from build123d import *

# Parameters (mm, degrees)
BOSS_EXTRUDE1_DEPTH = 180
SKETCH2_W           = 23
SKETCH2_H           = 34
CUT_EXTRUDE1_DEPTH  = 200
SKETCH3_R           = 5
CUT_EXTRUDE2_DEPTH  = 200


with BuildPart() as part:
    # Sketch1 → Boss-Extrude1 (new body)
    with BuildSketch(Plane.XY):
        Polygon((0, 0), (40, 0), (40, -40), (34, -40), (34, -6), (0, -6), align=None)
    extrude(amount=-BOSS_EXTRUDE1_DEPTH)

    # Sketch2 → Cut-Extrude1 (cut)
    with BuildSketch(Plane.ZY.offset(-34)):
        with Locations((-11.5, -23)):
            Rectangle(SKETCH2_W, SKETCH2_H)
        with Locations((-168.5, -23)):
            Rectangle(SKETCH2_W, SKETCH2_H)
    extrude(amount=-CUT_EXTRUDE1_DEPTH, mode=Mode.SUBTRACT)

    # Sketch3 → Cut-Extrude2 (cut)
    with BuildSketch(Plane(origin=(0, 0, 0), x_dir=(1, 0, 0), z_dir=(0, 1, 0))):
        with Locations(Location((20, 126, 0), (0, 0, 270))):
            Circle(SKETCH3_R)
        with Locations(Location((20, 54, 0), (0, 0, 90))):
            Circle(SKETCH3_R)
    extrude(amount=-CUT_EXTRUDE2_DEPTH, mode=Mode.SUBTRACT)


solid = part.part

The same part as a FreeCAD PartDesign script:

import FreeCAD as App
import Part
import Sketcher
from FreeCAD import Vector

doc = App.newDocument("Part")
body = doc.addObject("PartDesign::Body", "Body")

# Sketch on XY plane
sketch1 = body.newObject("Sketcher::SketchObject", "Sketch")
sketch1.AttachmentSupport = (doc.getObject("XY_Plane"), [""])
sketch1.MapMode = "FlatFace"
sketch1.addGeometry(Part.LineSegment(Vector(40, 0, 0), Vector(0, 0, 0)), False)
sketch1.addGeometry(Part.LineSegment(Vector(0, 0, 0), Vector(0, -6, 0)), False)
sketch1.addGeometry(Part.LineSegment(Vector(0, -6, 0), Vector(34, -6, 0)), False)
sketch1.addGeometry(Part.LineSegment(Vector(34, -6, 0), Vector(34, -40, 0)), False)
sketch1.addGeometry(Part.LineSegment(Vector(34, -40, 0), Vector(40, -40, 0)), False)
sketch1.addGeometry(Part.LineSegment(Vector(40, -40, 0), Vector(40, 0, 0)), False)
sketch1.addConstraint(Sketcher.Constraint("Coincident", 0, 2, 1, 1))
sketch1.addConstraint(Sketcher.Constraint("Coincident", 1, 2, 2, 1))
sketch1.addConstraint(Sketcher.Constraint("Coincident", 2, 2, 3, 1))
sketch1.addConstraint(Sketcher.Constraint("Coincident", 3, 2, 4, 1))
sketch1.addConstraint(Sketcher.Constraint("Coincident", 4, 2, 5, 1))
sketch1.addConstraint(Sketcher.Constraint("Coincident", 5, 2, 0, 1))
sketch1.addConstraint(Sketcher.Constraint("Horizontal", 0))
sketch1.addConstraint(Sketcher.Constraint("Vertical", 1))
sketch1.addConstraint(Sketcher.Constraint("Horizontal", 2))
sketch1.addConstraint(Sketcher.Constraint("Vertical", 3))
sketch1.addConstraint(Sketcher.Constraint("Horizontal", 4))
sketch1.addConstraint(Sketcher.Constraint("Vertical", 5))
sketch1.addConstraint(Sketcher.Constraint("Coincident", 0, 2, -1, 1))
sketch1.addConstraint(Sketcher.Constraint("Equal", 4, 1))
sketch1.addConstraint(Sketcher.Constraint("Equal", 2, 3))
sketch1.addConstraint(Sketcher.Constraint("DistanceX", 0, 2, 0, 1, 40.0))
sketch1.addConstraint(Sketcher.Constraint("DistanceX", 2, 1, 2, 2, 34.0))
pad1 = body.newObject("PartDesign::Pad", "Pad")
pad1.Profile = sketch1
pad1.Length = 180
pad1.Reversed = True

# Sketch on YZ plane
sketch2 = body.newObject("Sketcher::SketchObject", "Sketch001")
sketch2.AttachmentSupport = (doc.getObject("YZ_Plane"), [""])
sketch2.MapMode = "FlatFace"
sketch2.AttachmentOffset = App.Placement(Vector(0, 0, 34), App.Rotation())
sketch2.addGeometry(Part.LineSegment(Vector(-6, -23, 0), Vector(-40, -23, 0)), False)
sketch2.addGeometry(Part.LineSegment(Vector(-40, -23, 0), Vector(-40, 0, 0)), False)
sketch2.addGeometry(Part.LineSegment(Vector(-40, 0, 0), Vector(-6, 0, 0)), False)
sketch2.addGeometry(Part.LineSegment(Vector(-6, 0, 0), Vector(-6, -23, 0)), False)
sketch2.addGeometry(Part.LineSegment(Vector(-6, -180, 0), Vector(-40, -180, 0)), False)
sketch2.addGeometry(Part.LineSegment(Vector(-40, -180, 0), Vector(-40, -157, 0)), False)
sketch2.addGeometry(Part.LineSegment(Vector(-40, -157, 0), Vector(-6, -157, 0)), False)
sketch2.addGeometry(Part.LineSegment(Vector(-6, -157, 0), Vector(-6, -180, 0)), False)
sketch2.addConstraint(Sketcher.Constraint("Coincident", 0, 2, 1, 1))
sketch2.addConstraint(Sketcher.Constraint("Coincident", 1, 2, 2, 1))
sketch2.addConstraint(Sketcher.Constraint("Coincident", 2, 2, 3, 1))
sketch2.addConstraint(Sketcher.Constraint("Coincident", 3, 2, 0, 1))
sketch2.addConstraint(Sketcher.Constraint("Coincident", 4, 2, 5, 1))
sketch2.addConstraint(Sketcher.Constraint("Coincident", 5, 2, 6, 1))
sketch2.addConstraint(Sketcher.Constraint("Coincident", 6, 2, 7, 1))
sketch2.addConstraint(Sketcher.Constraint("Coincident", 7, 2, 4, 1))
sketch2.addConstraint(Sketcher.Constraint("Horizontal", 0))
sketch2.addConstraint(Sketcher.Constraint("Vertical", 1))
sketch2.addConstraint(Sketcher.Constraint("Horizontal", 2))
sketch2.addConstraint(Sketcher.Constraint("Vertical", 3))
sketch2.addConstraint(Sketcher.Constraint("Horizontal", 4))
sketch2.addConstraint(Sketcher.Constraint("Vertical", 5))
sketch2.addConstraint(Sketcher.Constraint("Horizontal", 6))
sketch2.addConstraint(Sketcher.Constraint("Vertical", 7))
sketch2.addConstraint(Sketcher.Constraint("PointOnObject", 1, 2, -1))
sketch2.addConstraint(Sketcher.Constraint("Vertical", 1, 2, 4, 2))
sketch2.addConstraint(Sketcher.Constraint("Vertical", 3, 2, 6, 2))
sketch2.addConstraint(Sketcher.Constraint("Equal", 3, 5))
sketch2.addConstraint(Sketcher.Constraint("DistanceX", 0, 2, 0, 1, 34.0))
sketch2.addConstraint(Sketcher.Constraint("DistanceY", 1, 1, 1, 2, 23.0))
sketch2.addConstraint(Sketcher.Constraint("DistanceX", 0, 2, -1, 1, 40.0))
sketch2.addConstraint(Sketcher.Constraint("DistanceY", 4, 2, -1, 1, 180.0))
pocket1 = body.newObject("PartDesign::Pocket", "Pocket")
pocket1.Profile = sketch2
pocket1.Length = 200
pocket1.Reversed = True

# Sketch on XZ plane
sketch3 = body.newObject("Sketcher::SketchObject", "Sketch002")
sketch3.AttachmentSupport = (doc.getObject("XZ_Plane"), [""])
sketch3.MapMode = "FlatFace"
sketch3.addGeometry(Part.Circle(Vector(20, -126, 0), Vector(0, 0, 1), 5), False)
sketch3.addGeometry(Part.Circle(Vector(20, -54, 0), Vector(0, 0, 1), 5), False)
sketch3.addConstraint(Sketcher.Constraint("Equal", 0, 1))
sketch3.addConstraint(Sketcher.Constraint("Vertical", 0, 3, 1, 3))
sketch3.addConstraint(Sketcher.Constraint("Diameter", 0, 10.0))
sketch3.addConstraint(Sketcher.Constraint("DistanceX", -1, 1, 0, 3, 20.0))
sketch3.addConstraint(Sketcher.Constraint("DistanceY", 0, 3, -1, 1, 126.0))
sketch3.addConstraint(Sketcher.Constraint("DistanceY", 1, 3, -1, 1, 54.0))
pocket2 = body.newObject("PartDesign::Pocket", "Pocket001")
pocket2.Profile = sketch3
pocket2.Length = 200
pocket2.Reversed = True

doc.recompute()
